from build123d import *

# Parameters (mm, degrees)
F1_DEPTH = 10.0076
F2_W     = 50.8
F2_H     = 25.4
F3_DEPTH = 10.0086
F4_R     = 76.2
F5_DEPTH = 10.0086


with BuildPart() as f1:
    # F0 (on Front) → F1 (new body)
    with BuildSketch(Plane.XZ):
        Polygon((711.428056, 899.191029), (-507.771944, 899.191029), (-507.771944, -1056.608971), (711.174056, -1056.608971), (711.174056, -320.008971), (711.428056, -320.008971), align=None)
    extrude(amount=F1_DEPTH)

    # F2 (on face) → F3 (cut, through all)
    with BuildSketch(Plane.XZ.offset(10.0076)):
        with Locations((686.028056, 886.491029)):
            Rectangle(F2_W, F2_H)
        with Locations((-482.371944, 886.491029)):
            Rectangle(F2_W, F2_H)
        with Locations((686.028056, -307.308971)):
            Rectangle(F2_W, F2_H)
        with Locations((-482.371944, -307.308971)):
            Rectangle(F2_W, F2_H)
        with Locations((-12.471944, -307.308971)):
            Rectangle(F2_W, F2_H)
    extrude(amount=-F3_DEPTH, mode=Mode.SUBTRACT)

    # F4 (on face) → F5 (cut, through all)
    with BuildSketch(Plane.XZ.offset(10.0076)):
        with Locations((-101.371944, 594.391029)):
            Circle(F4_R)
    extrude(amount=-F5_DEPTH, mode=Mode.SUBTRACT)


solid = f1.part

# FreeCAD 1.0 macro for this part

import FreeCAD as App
import Part
import Sketcher

V = App.Vector
Q = App.Units.Quantity


def add_polygon(sketch, points):
    """Adds a closed chain of lines whose ends are joined by coincident constraints."""
    first, n = sketch.GeometryCount, len(points)
    for a, b in zip(points, points[1:] + points[:1]):
        sketch.addGeometry(Part.LineSegment(App.Vector(*a, 0), App.Vector(*b, 0)), False)
    for i in range(n):
        sketch.addConstraint(Sketcher.Constraint("Coincident", first + i, 2, first + (i + 1) % n, 1))

doc = App.newDocument("Part")
body = doc.addObject("PartDesign::Body", "Body")

sketch1 = body.newObject("Sketcher::SketchObject", "Sketch")
sketch1.AttachmentSupport = (doc.getObject("XZ_Plane"), [""])
sketch1.MapMode = "FlatFace"
add_polygon(sketch1, [(711.43, 899.19), (-507.77, 899.19), (-507.77, -1056.61), (711.17, -1056.61), (711.17, -320.01), (711.43, -320.01)])
sketch1.addConstraint(Sketcher.Constraint("Horizontal", 0))
sketch1.addConstraint(Sketcher.Constraint("Vertical", 1))
sketch1.addConstraint(Sketcher.Constraint("Horizontal", 2))
sketch1.addConstraint(Sketcher.Constraint("Vertical", 3))
sketch1.addConstraint(Sketcher.Constraint("Horizontal", 4))
sketch1.addConstraint(Sketcher.Constraint("Vertical", 5))
sketch1.addConstraint(Sketcher.Constraint("Equal", 0, 5))
sketch1.addConstraint(Sketcher.Constraint("DistanceX", 0, 2, 0, 1, Q("48 in")))
sketch1.addConstraint(Sketcher.Constraint("DistanceY", 1, 2, 1, 1, Q("77 in")))
sketch1.addConstraint(Sketcher.Constraint("DistanceX", 2, 1, 2, 2, Q("47.99 in")))
sketch1.addConstraint(Sketcher.Constraint("DistanceY", -1, 1, 0, 2, Q("899.191029 mm")))
sketch1.addConstraint(Sketcher.Constraint("DistanceX", 0, 2, -1, 1, Q("507.771944 mm")))
pad1 = body.newObject("PartDesign::Pad", "Pad")
pad1.Profile = sketch1
pad1.Length = Q("0.394 in")

sketch2 = body.newObject("Sketcher::SketchObject", "Sketch001")
sketch2.AttachmentSupport = (doc.getObject("XZ_Plane"), [""])
sketch2.MapMode = "FlatFace"
sketch2.AttachmentOffset = App.Placement(V(0, 0, 0.394 * 25.4), App.Rotation())
add_polygon(sketch2, [(661, 899), (661, 874), (711, 874), (711, 899)])
add_polygon(sketch2, [(-508, 899), (-508, 874), (-457, 874), (-457, 899)])
add_polygon(sketch2, [(661, -295), (661, -320), (711, -320), (711, -295)])
add_polygon(sketch2, [(-508, -295), (-508, -320), (-457, -320), (-457, -295)])
add_polygon(sketch2, [(-38, -295), (-38, -320), (13, -320), (13, -295)])
sketch2.addConstraint(Sketcher.Constraint("Vertical", 0))
sketch2.addConstraint(Sketcher.Constraint("Horizontal", 1))
sketch2.addConstraint(Sketcher.Constraint("Vertical", 2))
sketch2.addConstraint(Sketcher.Constraint("Horizontal", 3))
sketch2.addConstraint(Sketcher.Constraint("Vertical", 4))
sketch2.addConstraint(Sketcher.Constraint("Horizontal", 5))
sketch2.addConstraint(Sketcher.Constraint("Vertical", 6))
sketch2.addConstraint(Sketcher.Constraint("Horizontal", 7))
sketch2.addConstraint(Sketcher.Constraint("Vertical", 8))
sketch2.addConstraint(Sketcher.Constraint("Horizontal", 9))
sketch2.addConstraint(Sketcher.Constraint("Vertical", 10))
sketch2.addConstraint(Sketcher.Constraint("Horizontal", 11))
sketch2.addConstraint(Sketcher.Constraint("Vertical", 12))
sketch2.addConstraint(Sketcher.Constraint("Horizontal", 13))
sketch2.addConstraint(Sketcher.Constraint("Vertical", 14))
sketch2.addConstraint(Sketcher.Constraint("Horizontal", 15))
sketch2.addConstraint(Sketcher.Constraint("Vertical", 16))
sketch2.addConstraint(Sketcher.Constraint("Horizontal", 17))
sketch2.addConstraint(Sketcher.Constraint("Vertical", 18))
sketch2.addConstraint(Sketcher.Constraint("Horizontal", 19))
sketch2.addConstraint(Sketcher.Constraint("Horizontal", 1, 2, 4, 2))
sketch2.addConstraint(Sketcher.Constraint("Horizontal", 3, 2, 6, 2))
sketch2.addConstraint(Sketcher.Constraint("Horizontal", 9, 2, 12, 2))
sketch2.addConstraint(Sketcher.Constraint("Horizontal", 11, 2, 14, 2))
sketch2.addConstraint(Sketcher.Constraint("Horizontal", 13, 2, 16, 2))
sketch2.addConstraint(Sketcher.Constraint("Horizontal", 15, 2, 18, 2))
sketch2.addConstraint(Sketcher.Constraint("Vertical", 3, 2, 8, 2))
sketch2.addConstraint(Sketcher.Constraint("Vertical", 2, 2, 9, 2))
sketch2.addConstraint(Sketcher.Constraint("Vertical", 7, 2, 12, 2))
sketch2.addConstraint(Sketcher.Constraint("Vertical", 6, 2, 13, 2))
sketch2.addConstraint(Sketcher.Constraint("Equal", 3, 5))
sketch2.addConstraint(Sketcher.Constraint("Equal", 15, 17))
sketch2.addConstraint(Sketcher.Constraint("Equal", 6, 8))
sketch2.addConstraint(Sketcher.Constraint("DistanceX", 1, 1, 1, 2, Q("2 in")))
sketch2.addConstraint(Sketcher.Constraint("DistanceY", 0, 2, 0, 1, Q("1 in")))
sketch2.addConstraint(Sketcher.Constraint("DistanceX", 4, 2, 0, 2, Q("46 in")))
sketch2.addConstraint(Sketcher.Constraint("DistanceY", 8, 2, 0, 2, Q("47 in")))
sketch2.addConstraint(Sketcher.Constraint("DistanceX", 13, 2, 16, 2, Q("16.5 in")))
sketch2.addConstraint(Sketcher.Constraint("DistanceY", -1, 1, 0, 2, Q("873.791029 mm")))
sketch2.addConstraint(Sketcher.Constraint("DistanceX", -1, 1, 0, 2, Q("660.628056 mm")))
pocket1 = body.newObject("PartDesign::Pocket", "Pocket")
pocket1.Profile = sketch2
pocket1.Type = "ThroughAll"

sketch3 = body.newObject("Sketcher::SketchObject", "Sketch002")
sketch3.AttachmentSupport = (doc.getObject("XZ_Plane"), [""])
sketch3.MapMode = "FlatFace"
sketch3.AttachmentOffset = App.Placement(V(0, 0, 0.394 * 25.4), App.Rotation())
sketch3.addGeometry(Part.Circle(V(-101, 594, 0), V(0, 0, 1), 76), False)
sketch3.addConstraint(Sketcher.Constraint("Diameter", 0, Q("6 in")))
sketch3.addConstraint(Sketcher.Constraint("DistanceY", -1, 1, 0, 3, Q("594.391029 mm")))
sketch3.addConstraint(Sketcher.Constraint("DistanceX", 0, 3, -1, 1, Q("101.371944 mm")))
pocket2 = body.newObject("PartDesign::Pocket", "Pocket001")
pocket2.Profile = sketch3
pocket2.Type = "ThroughAll"

doc.recompute()
